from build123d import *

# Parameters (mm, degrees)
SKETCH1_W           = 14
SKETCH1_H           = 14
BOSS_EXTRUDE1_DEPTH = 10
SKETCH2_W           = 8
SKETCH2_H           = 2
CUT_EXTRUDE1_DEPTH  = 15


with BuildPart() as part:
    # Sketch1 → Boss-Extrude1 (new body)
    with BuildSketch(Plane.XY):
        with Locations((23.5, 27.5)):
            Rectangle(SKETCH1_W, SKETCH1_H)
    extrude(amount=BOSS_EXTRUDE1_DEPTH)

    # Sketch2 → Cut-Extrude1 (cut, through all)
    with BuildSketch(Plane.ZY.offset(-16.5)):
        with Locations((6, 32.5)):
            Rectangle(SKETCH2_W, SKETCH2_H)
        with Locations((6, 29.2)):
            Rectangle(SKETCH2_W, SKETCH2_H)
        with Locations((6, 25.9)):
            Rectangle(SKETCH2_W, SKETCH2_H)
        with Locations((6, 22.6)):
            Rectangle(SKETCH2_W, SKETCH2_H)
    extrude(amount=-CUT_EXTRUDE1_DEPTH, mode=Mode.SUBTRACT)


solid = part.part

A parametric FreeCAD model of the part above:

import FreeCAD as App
import Part
import Sketcher

doc = App.newDocument("Part")
params = doc.addObject("Spreadsheet::Sheet", "Params")
for row, (alias, value) in enumerate([
    ("sketch1_width", "14 mm"),
    ("pad1_length", "10 mm"),
    ("sketch2_width", "2 mm"),
    ("sketch2_height", "8 mm"),
], start=1):
    params.set(f"A{row}", alias)
    params.set(f"B{row}", "=" + value)
    params.setAlias(f"B{row}", alias)

body = doc.addObject("PartDesign::Body", "Body")

# Sketch on XY plane
sketch1 = body.newObject("Sketcher::SketchObject", "Sketch")
sketch1.AttachmentSupport = (doc.getObject("XY_Plane"), [""])
sketch1.MapMode = "FlatFace"
sketch1.addGeometry([
    Part.LineSegment(App.Vector(16, 34, 0), App.Vector(16, 20, 0)),
    Part.LineSegment(App.Vector(16, 20, 0), App.Vector(30, 20, 0)),
    Part.LineSegment(App.Vector(30, 20, 0), App.Vector(30, 34, 0)),
    Part.LineSegment(App.Vector(30, 34, 0), App.Vector(16, 34, 0)),
], False)
sketch1.addConstraint([
    Sketcher.Constraint("Coincident", 0, 2, 1, 1),
    Sketcher.Constraint("Coincident", 1, 2, 2, 1),
    Sketcher.Constraint("Coincident", 2, 2, 3, 1),
    Sketcher.Constraint("Coincident", 3, 2, 0, 1),
    Sketcher.Constraint("Vertical", 0),
    Sketcher.Constraint("Horizontal", 1),
    Sketcher.Constraint("Vertical", 2),
    Sketcher.Constraint("Horizontal", 3),
    Sketcher.Constraint("Equal", 3, 0),
    Sketcher.Constraint("DistanceX", 1, 1, 1, 2, 14.0),
    Sketcher.Constraint("DistanceX", -1, 1, 0, 2, 16.5),
    Sketcher.Constraint("DistanceY", -1, 1, 0, 2, 20.5),
])
sketch1.setExpression("Constraints[9]", "Params.sketch1_width")
pad1 = body.newObject("PartDesign::Pad", "Pad")
pad1.Profile = sketch1
pad1.setExpression("Length", "Params.pad1_length")

# Sketch on YZ plane
sketch2 = body.newObject("Sketcher::SketchObject", "Sketch001")
sketch2.AttachmentSupport = (doc.getObject("YZ_Plane"), [""])
sketch2.MapMode = "FlatFace"
sketch2.AttachmentOffset = App.Placement(App.Vector(0, 0, 16.5), App.Rotation())
sketch2.addGeometry([
    Part.LineSegment(App.Vector(33.5, 2, 0), App.Vector(31.5, 2, 0)),  # 0
    Part.LineSegment(App.Vector(31.5, 2, 0), App.Vector(31.5, 10, 0)),  # 1
    Part.LineSegment(App.Vector(31.5, 10, 0), App.Vector(33.5, 10, 0)),  # 2
    Part.LineSegment(App.Vector(33.5, 10, 0), App.Vector(33.5, 2, 0)),  # 3
    Part.LineSegment(App.Vector(30.2, 2, 0), App.Vector(28.2, 2, 0)),  # 4
    Part.LineSegment(App.Vector(28.2, 2, 0), App.Vector(28.2, 10, 0)),  # 5
    Part.LineSegment(App.Vector(28.2, 10, 0), App.Vector(30.2, 10, 0)),  # 6
    Part.LineSegment(App.Vector(30.2, 10, 0), App.Vector(30.2, 2, 0)),  # 7
    Part.LineSegment(App.Vector(26.9, 2, 0), App.Vector(24.9, 2, 0)),  # 8
    Part.LineSegment(App.Vector(24.9, 2, 0), App.Vector(24.9, 10, 0)),  # 9
    Part.LineSegment(App.Vector(24.9, 10, 0), App.Vector(26.9, 10, 0)),  # 10
    Part.LineSegment(App.Vector(26.9, 10, 0), App.Vector(26.9, 2, 0)),  # 11
    Part.LineSegment(App.Vector(23.6, 2, 0), App.Vector(21.6, 2, 0)),  # 12
    Part.LineSegment(App.Vector(21.6, 2, 0), App.Vector(21.6, 10, 0)),  # 13
    Part.LineSegment(App.Vector(21.6, 10, 0), App.Vector(23.6, 10, 0)),  # 14
    Part.LineSegment(App.Vector(23.6, 10, 0), App.Vector(23.6, 2, 0)),  # 15
], False)
sketch2.addConstraint([
    Sketcher.Constraint("Coincident", 0, 2, 1, 1),
    Sketcher.Constraint("Coincident", 1, 2, 2, 1),
    Sketcher.Constraint("Coincident", 2, 2, 3, 1),
    Sketcher.Constraint("Coincident", 3, 2, 0, 1),
    Sketcher.Constraint("Coincident", 4, 2, 5, 1),
    Sketcher.Constraint("Coincident", 5, 2, 6, 1),
    Sketcher.Constraint("Coincident", 6, 2, 7, 1),
    Sketcher.Constraint("Coincident", 7, 2, 4, 1),
    Sketcher.Constraint("Coincident", 8, 2, 9, 1),
    Sketcher.Constraint("Coincident", 9, 2, 10, 1),
    Sketcher.Constraint("Coincident", 10, 2, 11, 1),
    Sketcher.Constraint("Coincident", 11, 2, 8, 1),
    Sketcher.Constraint("Coincident", 12, 2, 13, 1),
    Sketcher.Constraint("Coincident", 13, 2, 14, 1),
    Sketcher.Constraint("Coincident", 14, 2, 15, 1),
    Sketcher.Constraint("Coincident", 15, 2, 12, 1),
    Sketcher.Constraint("Horizontal", 0),
    Sketcher.Constraint("Vertical", 1),
    Sketcher.Constraint("Horizontal", 2),
    Sketcher.Constraint("Vertical", 3),
    Sketcher.Constraint("Horizontal", 4),
    Sketcher.Constraint("Vertical", 5),
    Sketcher.Constraint("Horizontal", 6),
    Sketcher.Constraint("Vertical", 7),
    Sketcher.Constraint("Horizontal", 8),
    Sketcher.Constraint("Vertical", 9),
    Sketcher.Constraint("Horizontal", 10),
    Sketcher.Constraint("Vertical", 11),
    Sketcher.Constraint("Horizontal", 12),
    Sketcher.Constraint("Vertical", 13),
    Sketcher.Constraint("Horizontal", 14),
    Sketcher.Constraint("Vertical", 15),
    Sketcher.Constraint("Horizontal", 3, 2, 4, 2),
    Sketcher.Constraint("Horizontal", 2, 2, 5, 2),
    Sketcher.Constraint("Horizontal", 7, 2, 8, 2),
    Sketcher.Constraint("Horizontal", 6, 2, 9, 2),
    Sketcher.Constraint("Horizontal", 11, 2, 12, 2),
    Sketcher.Constraint("Horizontal", 10, 2, 13, 2),
    Sketcher.Constraint("Equal", 2, 4),
    Sketcher.Constraint("Equal", 6, 8),
    Sketcher.Constraint("Equal", 10, 12),
    Sketcher.Constraint("DistanceX", 0, 2, 0, 1, 2.0),
    Sketcher.Constraint("DistanceY", 1, 1, 1, 2, 8.0),
    Sketcher.Constraint("DistanceY", -1, 1, 0, 2, 2.0),
    Sketcher.Constraint("DistanceX", -1, 1, 0, 2, 31.5),
    Sketcher.Constraint("DistanceX", -1, 1, 4, 2, 28.2),
    Sketcher.Constraint("DistanceX", -1, 1, 8, 2, 24.9),
    Sketcher.Constraint("DistanceX", -1, 1, 12, 2, 21.6),
])
sketch2.setExpression("Constraints[41]", "Params.sketch2_width")
sketch2.setExpression("Constraints[42]", "Params.sketch2_height")
pocket1 = body.newObject("PartDesign::Pocket", "Pocket")
pocket1.Profile = sketch2
pocket1.Type = "ThroughAll"
pocket1.Reversed = True

doc.recompute()
